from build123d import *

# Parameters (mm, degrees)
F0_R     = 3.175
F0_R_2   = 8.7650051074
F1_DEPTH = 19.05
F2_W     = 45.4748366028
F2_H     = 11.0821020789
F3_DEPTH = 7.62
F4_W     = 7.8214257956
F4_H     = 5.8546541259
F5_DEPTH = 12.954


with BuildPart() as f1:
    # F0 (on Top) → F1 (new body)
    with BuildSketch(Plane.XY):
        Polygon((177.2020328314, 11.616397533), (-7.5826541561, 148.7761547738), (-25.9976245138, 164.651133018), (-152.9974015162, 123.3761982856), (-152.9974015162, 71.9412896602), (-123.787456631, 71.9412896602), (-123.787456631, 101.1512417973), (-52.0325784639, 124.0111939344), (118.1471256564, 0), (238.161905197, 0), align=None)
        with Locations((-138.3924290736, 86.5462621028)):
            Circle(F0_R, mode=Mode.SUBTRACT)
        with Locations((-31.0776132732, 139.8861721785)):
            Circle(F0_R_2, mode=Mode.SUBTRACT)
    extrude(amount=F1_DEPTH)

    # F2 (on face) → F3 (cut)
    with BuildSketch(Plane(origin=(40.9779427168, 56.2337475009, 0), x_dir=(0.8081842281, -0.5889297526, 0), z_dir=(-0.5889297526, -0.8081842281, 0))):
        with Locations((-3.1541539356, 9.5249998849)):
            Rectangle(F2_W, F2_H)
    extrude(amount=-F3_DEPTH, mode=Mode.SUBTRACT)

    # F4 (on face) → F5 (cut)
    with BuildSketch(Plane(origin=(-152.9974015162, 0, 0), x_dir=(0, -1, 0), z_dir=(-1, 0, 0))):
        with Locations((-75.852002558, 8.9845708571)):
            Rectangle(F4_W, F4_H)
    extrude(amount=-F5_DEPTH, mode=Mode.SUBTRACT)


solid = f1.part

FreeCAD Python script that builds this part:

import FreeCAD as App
import Part
import Sketcher

V = App.Vector
Q = App.Units.Quantity


def add_polygon(sketch, points):
    """Adds a closed chain of lines whose ends are joined by coincident constraints."""
    first, n = sketch.GeometryCount, len(points)
    for a, b in zip(points, points[1:] + points[:1]):
        sketch.addGeometry(Part.LineSegment(App.Vector(*a, 0), App.Vector(*b, 0)), False)
    for i in range(n):
        sketch.addConstraint(Sketcher.Constraint("Coincident", first + i, 2, first + (i + 1) % n, 1))

doc = App.newDocument("Part")
body = doc.addObject("PartDesign::Body", "Body")

# Sketch on XY plane
sketch1 = doc.addObject("Sketcher::SketchObject", "Sketch")
body.addObject(sketch1)
sketch1.AttachmentSupport = (doc.XY_Plane, [""])
sketch1.MapMode = "FlatFace"
add_polygon(sketch1, [(177.2, 11.6), (-7.6, 148.8), (-26, 164.7), (-153, 123.4), (-153, 71.9), (-123.8, 71.9), (-123.8, 101.2), (-52, 124), (118.1, 0), (238.2, 0)])  # lines 0-9
sketch1.addGeometry(Part.Circle(V(-138.4, 86.5, 0), V(0, 0, 1), 3.2), False)  # 10
sketch1.addGeometry(Part.Circle(V(-31.1, 139.9, 0), V(0, 0, 1), 8.8), False)  # 11
sketch1.addConstraint(Sketcher.Constraint("Vertical", 3))
sketch1.addConstraint(Sketcher.Constraint("Horizontal", 4))
sketch1.addConstraint(Sketcher.Constraint("Vertical", 5))
sketch1.addConstraint(Sketcher.Constraint("Horizontal", 8))
sketch1.addConstraint(Sketcher.Constraint("PointOnObject", 7, 2, -1))
sketch1.addConstraint(Sketcher.Constraint("Diameter", 10, Q("0.25 in")))
sketch1.addConstraint(Sketcher.Constraint("Diameter", 11, 17.53001))
sketch1.addConstraint(Sketcher.Constraint("Distance", 6, 75.308299))
sketch1.addConstraint(Sketcher.Constraint("DistanceX", 8, 1, 8, 2, 120.01478))
sketch1.addConstraint(Sketcher.Constraint("DistanceY", 3, 2, 3, 1, 51.434909))
sketch1.addConstraint(Sketcher.Constraint("DistanceX", 2, 2, -1, 1, 152.997402))
sketch1.addConstraint(Sketcher.Constraint("DistanceY", -1, 1, 2, 2, 123.376198))
sketch1.addConstraint(Sketcher.Constraint("DistanceX", 4, 1, 4, 2, 29.209945))
sketch1.addConstraint(Sketcher.Constraint("DistanceY", 5, 1, 5, 2, 29.209952))
sketch1.addConstraint(Sketcher.Constraint("DistanceX", 10, 3, -1, 1, 138.392429))
sketch1.addConstraint(Sketcher.Constraint("DistanceX", 6, 2, -1, 1, 52.032578))
sketch1.addConstraint(Sketcher.Constraint("DistanceY", 10, 3, 11, 3, 53.33991))
sketch1.addConstraint(Sketcher.Constraint("DistanceX", 11, 3, 0, 2, 23.494959))
sketch1.addConstraint(Sketcher.Constraint("DistanceX", 1, 2, 0, 2, 18.41497))
sketch1.addConstraint(Sketcher.Constraint("DistanceY", 0, 2, 1, 2, 15.874978))
sketch1.addConstraint(Sketcher.Constraint("DistanceY", 11, 3, 1, 2, 24.764961))
sketch1.addConstraint(Sketcher.Constraint("DistanceX", 2, 2, 11, 3, 121.919788))
sketch1.addConstraint(Sketcher.Constraint("DistanceY", 10, 3, 5, 2, 14.60498))
sketch1.addConstraint(Sketcher.Constraint("DistanceX", 0, 2, 7, 2, 125.72978))
sketch1.addConstraint(Sketcher.Constraint("Distance", 0, 230.126443))
sketch1.addConstraint(Sketcher.Constraint("Distance", 9, 62.056802))
pad1 = doc.addObject("PartDesign::Pad", "Pad")
body.addObject(pad1)
pad1.Profile = sketch1
pad1.Length = Q("0.75 in")

# Sketch on an angled plane
sketch2 = doc.addObject("Sketcher::SketchObject", "Sketch001")
body.addObject(sketch2)
sketch2.Placement = App.Placement(V(40.977943, 56.233748, 0), App.Rotation(V(0.808184228, -0.588929753, 0), V(0, 0, 1), V(-0.588929753, -0.808184228, 0), "ZXY"))
add_polygon(sketch2, [(-26, 15), (-26, 4), (20, 4), (20, 15)])  # lines 0-3
sketch2.addConstraint(Sketcher.Constraint("Vertical", 0))
sketch2.addConstraint(Sketcher.Constraint("Horizontal", 1))
sketch2.addConstraint(Sketcher.Constraint("Vertical", 2))
sketch2.addConstraint(Sketcher.Constraint("Horizontal", 3))
sketch2.addConstraint(Sketcher.Constraint("DistanceX", 1, 1, 1, 2, 45.474837))
sketch2.addConstraint(Sketcher.Constraint("DistanceY", 0, 2, 0, 1, 11.082102))
sketch2.addConstraint(Sketcher.Constraint("DistanceY", -1, 1, 0, 2, 3.983949))
sketch2.addConstraint(Sketcher.Constraint("DistanceX", 0, 2, -1, 1, 25.891572))
pocket1 = doc.addObject("PartDesign::Pocket", "Pocket")
body.addObject(pocket1)
pocket1.Profile = sketch2
pocket1.Length = Q("0.3 in")

# Sketch on YZ plane
sketch3 = doc.addObject("Sketcher::SketchObject", "Sketch002")
body.addObject(sketch3)
sketch3.AttachmentSupport = (doc.YZ_Plane, [""])
sketch3.MapMode = "FlatFace"
sketch3.AttachmentOffset = App.Placement(V(0, 0, -152.997402), App.Rotation())
add_polygon(sketch3, [(80, 12), (80, 6), (72, 6), (72, 12)])  # lines 0-3
sketch3.addConstraint(Sketcher.Constraint("Vertical", 0))
sketch3.addConstraint(Sketcher.Constraint("Horizontal", 1))
sketch3.addConstraint(Sketcher.Constraint("Vertical", 2))
sketch3.addConstraint(Sketcher.Constraint("Horizontal", 3))
sketch3.addConstraint(Sketcher.Constraint("DistanceX", 1, 2, 1, 1, 7.821426))
sketch3.addConstraint(Sketcher.Constraint("DistanceY", 0, 2, 0, 1, 5.854654))
sketch3.addConstraint(Sketcher.Constraint("DistanceX", -1, 1, 1, 2, 71.94129))
sketch3.addConstraint(Sketcher.Constraint("DistanceY", -1, 1, 0, 2, 6.057244))
pocket2 = doc.addObject("PartDesign::Pocket", "Pocket001")
body.addObject(pocket2)
pocket2.Profile = sketch3
pocket2.Length = Q("0.51 in")
pocket2.Reversed = True

doc.recompute()
